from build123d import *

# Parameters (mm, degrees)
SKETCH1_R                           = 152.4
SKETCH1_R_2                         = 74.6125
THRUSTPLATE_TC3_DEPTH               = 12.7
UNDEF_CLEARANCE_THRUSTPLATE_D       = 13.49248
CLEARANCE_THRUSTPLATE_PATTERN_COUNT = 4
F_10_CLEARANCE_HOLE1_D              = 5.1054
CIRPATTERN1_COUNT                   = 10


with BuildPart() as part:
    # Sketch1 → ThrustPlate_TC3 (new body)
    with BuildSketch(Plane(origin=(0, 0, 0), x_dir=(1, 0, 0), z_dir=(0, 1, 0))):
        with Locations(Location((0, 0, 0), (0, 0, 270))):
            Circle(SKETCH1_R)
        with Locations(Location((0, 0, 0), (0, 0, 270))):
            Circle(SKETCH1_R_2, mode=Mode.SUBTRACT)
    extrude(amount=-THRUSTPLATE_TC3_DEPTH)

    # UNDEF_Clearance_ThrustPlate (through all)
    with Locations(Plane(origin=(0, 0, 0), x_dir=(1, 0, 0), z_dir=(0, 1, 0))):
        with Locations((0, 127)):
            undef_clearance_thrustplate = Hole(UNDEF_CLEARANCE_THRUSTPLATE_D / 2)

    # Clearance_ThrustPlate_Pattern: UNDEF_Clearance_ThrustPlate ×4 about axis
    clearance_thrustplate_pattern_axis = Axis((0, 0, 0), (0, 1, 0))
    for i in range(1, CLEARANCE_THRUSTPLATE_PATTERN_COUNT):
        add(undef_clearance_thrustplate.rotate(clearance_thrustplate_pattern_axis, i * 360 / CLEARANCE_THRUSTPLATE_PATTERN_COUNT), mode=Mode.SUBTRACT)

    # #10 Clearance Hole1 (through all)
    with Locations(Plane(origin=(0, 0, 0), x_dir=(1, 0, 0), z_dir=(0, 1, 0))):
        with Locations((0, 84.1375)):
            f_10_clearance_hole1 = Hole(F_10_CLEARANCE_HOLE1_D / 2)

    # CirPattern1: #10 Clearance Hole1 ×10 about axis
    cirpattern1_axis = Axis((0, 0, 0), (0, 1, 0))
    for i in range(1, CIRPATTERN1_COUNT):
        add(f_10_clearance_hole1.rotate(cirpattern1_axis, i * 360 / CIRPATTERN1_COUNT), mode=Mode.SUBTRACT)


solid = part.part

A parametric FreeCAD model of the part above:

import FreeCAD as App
import Part
import Sketcher
from FreeCAD import Vector
Q = App.Units.Quantity

doc = App.newDocument("Part")
params = doc.addObject("Spreadsheet::Sheet", "Params")
for row, (alias, value) in enumerate([
    ("sketch1_diameter", "12 in"),
    ("sketch1_diameter2", "5.875 in"),
    ("pad1_length", "0.5 in"),
    ("hole_diameter", "0.5312 in"),
    ("sketch3_diameter", "0.201 in"),
    ("hole2_diameter", "0.201 in"),
], start=1):
    params.set(f"A{row}", alias)
    params.set(f"B{row}", "=" + value)
    params.setAlias(f"B{row}", alias)

body = doc.addObject("PartDesign::Body", "Body")

# Sketch on XZ plane
sketch1 = body.newObject("Sketcher::SketchObject", "Sketch")
sketch1.AttachmentSupport = (doc.getObject("XZ_Plane"), [""])
sketch1.MapMode = "FlatFace"
sketch1.addGeometry([
    Part.Circle(Vector(0, 0, 0), Vector(0, 0, 1), 152),
    Part.Circle(Vector(0, 0, 0), Vector(0, 0, 1), 75),
], False)
sketch1.addConstraint([
    Sketcher.Constraint("Coincident", 0, 3, -1, 1),
    Sketcher.Constraint("Coincident", 1, 3, -1, 1),
    Sketcher.Constraint("Diameter", 0, Q("12 in")),
    Sketcher.Constraint("Diameter", 1, Q("5.875 in")),
])
sketch1.setExpression("Constraints[2]", "Params.sketch1_diameter")
sketch1.setExpression("Constraints[3]", "Params.sketch1_diameter2")
pad1 = body.newObject("PartDesign::Pad", "Pad")
pad1.Profile = sketch1
pad1.setExpression("Length", "Params.pad1_length")

# Sketch on XZ plane
sketch2 = body.newObject("Sketcher::SketchObject", "Sketch001")
sketch2.AttachmentSupport = (doc.getObject("XZ_Plane"), [""])
sketch2.MapMode = "FlatFace"
sketch2.addGeometry(Part.Circle(Vector(0, -127, 0), Vector(0, 0, 1), 7), False)
sketch2.addConstraint([
    Sketcher.Constraint("PointOnObject", 0, 3, -2),
    Sketcher.Constraint("DistanceY", 0, 3, -1, 1, Q("5 in")),
    Sketcher.Constraint("Diameter", 0, Q("0.5312 in")),
])
doc.recompute()
hole = body.newObject("PartDesign::Hole", "Hole")
hole.Profile = sketch2
hole.ThreadType = "None"
hole.setExpression("Diameter", "Params.hole_diameter")
hole.DepthType = "ThroughAll"
hole.Reversed = True
doc.recompute()

polarpattern = body.newObject("PartDesign::PolarPattern", "PolarPattern")
polarpattern.Originals = [hole]
polarpattern.Axis = (doc.getObject("Y_Axis"), [""])
polarpattern.Angle = 360
polarpattern.Occurrences = 4
body.Tip = polarpattern

# Sketch on XZ plane
sketch3 = body.newObject("Sketcher::SketchObject", "Sketch002")
sketch3.AttachmentSupport = (doc.getObject("XZ_Plane"), [""])
sketch3.MapMode = "FlatFace"
sketch3.addGeometry(Part.Circle(Vector(0, -84.1, 0), Vector(0, 0, 1), 2.6), False)
sketch3.addConstraint([
    Sketcher.Constraint("PointOnObject", 0, 3, -2),
    Sketcher.Constraint("Diameter", 0, Q("0.201 in")),
    Sketcher.Constraint("DistanceY", 0, 3, -1, 1, Q("3.3125 in")),
])
sketch3.setExpression("Constraints[1]", "Params.sketch3_diameter")
doc.recompute()
hole2 = body.newObject("PartDesign::Hole", "Hole001")
hole2.Profile = sketch3
hole2.ThreadType = "None"
hole2.setExpression("Diameter", "Params.hole2_diameter")
hole2.DepthType = "ThroughAll"
hole2.Reversed = True
doc.recompute()

polarpattern2 = body.newObject("PartDesign::PolarPattern", "PolarPattern001")
polarpattern2.Originals = [hole2]
polarpattern2.Axis = (doc.getObject("Y_Axis"), [""])
polarpattern2.Angle = 360
polarpattern2.Occurrences = 10
body.Tip = polarpattern2

doc.recompute()
